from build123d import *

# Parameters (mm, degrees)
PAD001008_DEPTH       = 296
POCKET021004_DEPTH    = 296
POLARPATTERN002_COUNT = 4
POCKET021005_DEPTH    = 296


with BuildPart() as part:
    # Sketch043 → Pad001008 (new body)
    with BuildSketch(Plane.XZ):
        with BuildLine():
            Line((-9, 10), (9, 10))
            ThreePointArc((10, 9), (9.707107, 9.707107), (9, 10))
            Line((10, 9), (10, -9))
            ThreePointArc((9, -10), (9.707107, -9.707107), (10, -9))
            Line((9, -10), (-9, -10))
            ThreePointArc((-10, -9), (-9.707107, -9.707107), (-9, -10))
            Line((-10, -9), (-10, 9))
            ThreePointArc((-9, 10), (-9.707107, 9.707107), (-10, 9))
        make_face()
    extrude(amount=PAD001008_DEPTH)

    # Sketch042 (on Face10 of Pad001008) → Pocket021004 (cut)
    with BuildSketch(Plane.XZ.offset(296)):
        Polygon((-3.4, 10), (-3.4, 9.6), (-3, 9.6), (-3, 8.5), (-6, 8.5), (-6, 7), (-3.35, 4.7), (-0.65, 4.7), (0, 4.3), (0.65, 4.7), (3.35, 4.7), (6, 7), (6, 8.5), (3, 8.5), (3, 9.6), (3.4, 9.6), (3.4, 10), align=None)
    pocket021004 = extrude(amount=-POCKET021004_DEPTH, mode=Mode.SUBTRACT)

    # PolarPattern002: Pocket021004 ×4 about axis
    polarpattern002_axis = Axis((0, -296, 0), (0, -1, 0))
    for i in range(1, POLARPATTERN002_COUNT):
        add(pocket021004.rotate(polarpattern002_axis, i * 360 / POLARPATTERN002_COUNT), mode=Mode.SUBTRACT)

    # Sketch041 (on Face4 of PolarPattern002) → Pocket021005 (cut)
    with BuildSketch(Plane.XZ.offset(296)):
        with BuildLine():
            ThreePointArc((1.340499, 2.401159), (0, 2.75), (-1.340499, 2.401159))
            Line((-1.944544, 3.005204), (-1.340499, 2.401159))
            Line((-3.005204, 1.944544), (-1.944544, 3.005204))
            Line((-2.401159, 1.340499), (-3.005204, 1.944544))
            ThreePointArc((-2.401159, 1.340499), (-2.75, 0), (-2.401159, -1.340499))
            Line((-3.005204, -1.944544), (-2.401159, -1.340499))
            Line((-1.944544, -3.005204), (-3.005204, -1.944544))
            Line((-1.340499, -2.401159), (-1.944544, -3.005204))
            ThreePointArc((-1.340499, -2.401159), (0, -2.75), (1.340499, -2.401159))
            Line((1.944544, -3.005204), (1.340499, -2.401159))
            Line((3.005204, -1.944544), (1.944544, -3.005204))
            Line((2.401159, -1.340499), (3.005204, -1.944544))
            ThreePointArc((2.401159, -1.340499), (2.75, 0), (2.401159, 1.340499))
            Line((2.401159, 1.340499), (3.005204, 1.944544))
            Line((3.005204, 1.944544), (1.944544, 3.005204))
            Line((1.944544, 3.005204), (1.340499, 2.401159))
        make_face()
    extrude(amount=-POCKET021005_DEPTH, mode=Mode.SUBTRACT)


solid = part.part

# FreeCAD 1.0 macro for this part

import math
import FreeCAD as App
import Part
import Sketcher

doc = App.newDocument("Part")
body = doc.addObject("PartDesign::Body", "Body")

# Sketch on XZ plane
sketch1 = body.newObject("Sketcher::SketchObject", "Sketch")
sketch1.AttachmentSupport = (doc.getObject("XZ_Plane"), [""])
sketch1.MapMode = "FlatFace"
sketch1.addGeometry([
    Part.LineSegment(App.Vector(9, 10, 0), App.Vector(-9, 10, 0)),  # 0
    Part.ArcOfCircle(Part.Circle(App.Vector(-9, 9, 0), App.Vector(0, 0, 1), 1), math.radians(90), math.radians(180)),  # 1
    Part.LineSegment(App.Vector(-10, 9, 0), App.Vector(-10, -9, 0)),  # 2
    Part.ArcOfCircle(Part.Circle(App.Vector(-9, -9, 0), App.Vector(0, 0, 1), 1), math.radians(180), math.radians(270)),  # 3
    Part.LineSegment(App.Vector(-9, -10, 0), App.Vector(9, -10, 0)),  # 4
    Part.ArcOfCircle(Part.Circle(App.Vector(9, -9, 0), App.Vector(0, 0, 1), 1), math.radians(-90), math.radians(0)),  # 5
    Part.LineSegment(App.Vector(10, -9, 0), App.Vector(10, 9, 0)),  # 6
    Part.ArcOfCircle(Part.Circle(App.Vector(9, 9, 0), App.Vector(0, 0, 1), 1), math.radians(0), math.radians(90)),  # 7
], False)
sketch1.addConstraint([
    Sketcher.Constraint("Tangent", 0, 2, 1, 1),
    Sketcher.Constraint("Tangent", 1, 2, 2, 1),
    Sketcher.Constraint("Tangent", 2, 2, 3, 1),
    Sketcher.Constraint("Tangent", 3, 2, 4, 1),
    Sketcher.Constraint("Tangent", 4, 2, 5, 1),
    Sketcher.Constraint("Tangent", 5, 2, 6, 1),
    Sketcher.Constraint("Tangent", 6, 2, 7, 1),
    Sketcher.Constraint("Tangent", 7, 2, 0, 1),
    Sketcher.Constraint("Horizontal", 0),
    Sketcher.Constraint("Vertical", 2),
    Sketcher.Constraint("Horizontal", 4),
    Sketcher.Constraint("Vertical", 6),
    Sketcher.Constraint("Equal", 1, 3),
    Sketcher.Constraint("Equal", 3, 5),
    Sketcher.Constraint("Equal", 5, 7),
    Sketcher.Constraint("Symmetric", 1, 3, 5, 3, -1, 1),
    Sketcher.Constraint("Equal", 4, 2),
    Sketcher.Constraint("Radius", 1, 0.999999),
    Sketcher.Constraint("DistanceX", 0, 2, 0, 1, 18.0),
])
pad1 = body.newObject("PartDesign::Pad", "Pad")
pad1.Profile = sketch1
pad1.Length = 296

# Sketch on XZ plane
sketch2 = body.newObject("Sketcher::SketchObject", "Sketch001")
sketch2.AttachmentSupport = (doc.getObject("XZ_Plane"), [""])
sketch2.MapMode = "FlatFace"
sketch2.AttachmentOffset = App.Placement(App.Vector(0, 0, 296), App.Rotation())
sketch2.addGeometry([
    Part.LineSegment(App.Vector(-3.4, 10, 0), App.Vector(-3.4, 9.6, 0)),  # 0
    Part.LineSegment(App.Vector(-3.4, 9.6, 0), App.Vector(-3, 9.6, 0)),  # 1
    Part.LineSegment(App.Vector(-3, 9.6, 0), App.Vector(-3, 8.5, 0)),  # 2
    Part.LineSegment(App.Vector(-3, 8.5, 0), App.Vector(-6, 8.5, 0)),  # 3
    Part.LineSegment(App.Vector(-6, 8.5, 0), App.Vector(-6, 7, 0)),  # 4
    Part.LineSegment(App.Vector(-6, 7, 0), App.Vector(-3.35, 4.7, 0)),  # 5
    Part.LineSegment(App.Vector(-3.35, 4.7, 0), App.Vector(-0.65, 4.7, 0)),  # 6
    Part.LineSegment(App.Vector(-0.65, 4.7, 0), App.Vector(0, 4.3, 0)),  # 7
    Part.LineSegment(App.Vector(0, 4.3, 0), App.Vector(0.65, 4.7, 0)),  # 8
    Part.LineSegment(App.Vector(0.65, 4.7, 0), App.Vector(3.35, 4.7, 0)),  # 9
    Part.LineSegment(App.Vector(3.35, 4.7, 0), App.Vector(6, 7, 0)),  # 10
    Part.LineSegment(App.Vector(6, 7, 0), App.Vector(6, 8.5, 0)),  # 11
    Part.LineSegment(App.Vector(6, 8.5, 0), App.Vector(3, 8.5, 0)),  # 12
    Part.LineSegment(App.Vector(3, 8.5, 0), App.Vector(3, 9.6, 0)),  # 13
    Part.LineSegment(App.Vector(3, 9.6, 0), App.Vector(3.4, 9.6, 0)),  # 14
    Part.LineSegment(App.Vector(3.4, 9.6, 0), App.Vector(3.4, 10, 0)),  # 15
    Part.LineSegment(App.Vector(3.4, 10, 0), App.Vector(-3.4, 10, 0)),  # 16
], False)
sketch2.addConstraint([
    Sketcher.Constraint("Coincident", 0, 2, 1, 1),
    Sketcher.Constraint("Coincident", 1, 2, 2, 1),
    Sketcher.Constraint("Coincident", 2, 2, 3, 1),
    Sketcher.Constraint("Coincident", 3, 2, 4, 1),
    Sketcher.Constraint("Coincident", 4, 2, 5, 1),
    Sketcher.Constraint("Coincident", 5, 2, 6, 1),
    Sketcher.Constraint("Coincident", 6, 2, 7, 1),
    Sketcher.Constraint("Coincident", 7, 2, 8, 1),
    Sketcher.Constraint("Coincident", 8, 2, 9, 1),
    Sketcher.Constraint("Coincident", 9, 2, 10, 1),
    Sketcher.Constraint("Coincident", 10, 2, 11, 1),
    Sketcher.Constraint("Coincident", 11, 2, 12, 1),
    Sketcher.Constraint("Coincident", 12, 2, 13, 1),
    Sketcher.Constraint("Coincident", 13, 2, 14, 1),
    Sketcher.Constraint("Coincident", 14, 2, 15, 1),
    Sketcher.Constraint("Coincident", 15, 2, 16, 1),
    Sketcher.Constraint("Coincident", 16, 2, 0, 1),
    Sketcher.Constraint("Vertical", 0),
    Sketcher.Constraint("Horizontal", 1),
    Sketcher.Constraint("Vertical", 2),
    Sketcher.Constraint("Horizontal", 3),
    Sketcher.Constraint("Vertical", 4),
    Sketcher.Constraint("Horizontal", 6),
    Sketcher.Constraint("Horizontal", 9),
    Sketcher.Constraint("Vertical", 11),
    Sketcher.Constraint("Horizontal", 12),
    Sketcher.Constraint("Vertical", 13),
    Sketcher.Constraint("Horizontal", 14),
    Sketcher.Constraint("Vertical", 15),
    Sketcher.Constraint("Horizontal", 16),
    Sketcher.Constraint("Symmetric", 6, 2, 8, 2, -2),
    Sketcher.Constraint("Symmetric", 4, 2, 10, 2, -2),
    Sketcher.Constraint("Symmetric", 2, 2, 12, 2, -2),
    Sketcher.Constraint("Symmetric", 0, 2, 14, 2, -2),
    Sketcher.Constraint("PointOnObject", 7, 2, -2),
    Sketcher.Constraint("Equal", 6, 9),
    Sketcher.Constraint("Equal", 14, 0),
    Sketcher.Constraint("DistanceX", 3, 2, 3, 1, 3.0),
    Sketcher.Constraint("DistanceX", 1, 1, 1, 2, 0.4),
    Sketcher.Constraint("DistanceX", 6, 1, 6, 2, 2.7),
    Sketcher.Constraint("DistanceX", 16, 2, 16, 1, 6.8),
    Sketcher.Constraint("DistanceY", 2, 2, 2, 1, 1.1),
    Sketcher.Constraint("DistanceY", 4, 2, 4, 1, 1.5),
    Sketcher.Constraint("DistanceY", -1, 1, 4, 2, 7.0),
    Sketcher.Constraint("DistanceX", 5, 2, 8, 2, 4.0),
    Sketcher.Constraint("DistanceY", -1, 1, 5, 2, 4.7),
    Sketcher.Constraint("DistanceY", -1, 1, 7, 2, 4.3),
])
pocket1 = body.newObject("PartDesign::Pocket", "Pocket")
pocket1.Profile = sketch2
pocket1.Length = 296
doc.recompute()

polarpattern = body.newObject("PartDesign::PolarPattern", "PolarPattern")
polarpattern.Originals = [pocket1]
polarpattern.Axis = (doc.getObject("Y_Axis"), [""])
polarpattern.Angle = 360
polarpattern.Occurrences = 4
body.Tip = polarpattern

# Sketch on XZ plane
sketch3 = body.newObject("Sketcher::SketchObject", "Sketch002")
sketch3.AttachmentSupport = (doc.getObject("XZ_Plane"), [""])
sketch3.MapMode = "FlatFace"
sketch3.AttachmentOffset = App.Placement(App.Vector(0, 0, 296), App.Rotation())
sketch3.addGeometry([
    Part.ArcOfCircle(Part.Circle(App.Vector(0, 0, 0), App.Vector(0, 0, 1), 2.8), math.radians(61), math.radians(119)),  # 0
    Part.LineSegment(App.Vector(-1.3, 2.4, 0), App.Vector(-1.9, 3, 0)),  # 1
    Part.LineSegment(App.Vector(-1.9, 3, 0), App.Vector(-3, 1.9, 0)),  # 2
    Part.LineSegment(App.Vector(-3, 1.9, 0), App.Vector(-2.4, 1.3, 0)),  # 3
    Part.ArcOfCircle(Part.Circle(App.Vector(0, 0, 0), App.Vector(0, 0, 1), 2.8), math.radians(151), math.radians(209)),  # 4
    Part.LineSegment(App.Vector(-2.4, -1.3, 0), App.Vector(-3, -1.9, 0)),  # 5
    Part.LineSegment(App.Vector(-3, -1.9, 0), App.Vector(-1.9, -3, 0)),  # 6
    Part.LineSegment(App.Vector(-1.9, -3, 0), App.Vector(-1.3, -2.4, 0)),  # 7
    Part.ArcOfCircle(Part.Circle(App.Vector(0, 0, 0), App.Vector(0, 0, 1), 2.8), math.radians(-119), math.radians(-61)),  # 8
    Part.LineSegment(App.Vector(1.3, -2.4, 0), App.Vector(1.9, -3, 0)),  # 9
    Part.LineSegment(App.Vector(1.9, -3, 0), App.Vector(3, -1.9, 0)),  # 10
    Part.LineSegment(App.Vector(3, -1.9, 0), App.Vector(2.4, -1.3, 0)),  # 11
    Part.ArcOfCircle(Part.Circle(App.Vector(0, 0, 0), App.Vector(0, 0, 1), 2.8), math.radians(-29), math.radians(29)),  # 12
    Part.LineSegment(App.Vector(2.4, 1.3, 0), App.Vector(3, 1.9, 0)),  # 13
    Part.LineSegment(App.Vector(3, 1.9, 0), App.Vector(1.9, 3, 0)),  # 14
    Part.LineSegment(App.Vector(1.9, 3, 0), App.Vector(1.3, 2.4, 0)),  # 15
], False)
sketch3.addConstraint([
    Sketcher.Constraint("Coincident", 0, 2, 1, 1),
    Sketcher.Constraint("Coincident", 1, 2, 2, 1),
    Sketcher.Constraint("Coincident", 2, 2, 3, 1),
    Sketcher.Constraint("Coincident", 3, 2, 4, 1),
    Sketcher.Constraint("Coincident", 4, 2, 5, 1),
    Sketcher.Constraint("Coincident", 5, 2, 6, 1),
    Sketcher.Constraint("Coincident", 6, 2, 7, 1),
    Sketcher.Constraint("Coincident", 7, 2, 8, 1),
    Sketcher.Constraint("Coincident", 8, 2, 9, 1),
    Sketcher.Constraint("Coincident", 9, 2, 10, 1),
    Sketcher.Constraint("Coincident", 10, 2, 11, 1),
    Sketcher.Constraint("Coincident", 11, 2, 12, 1),
    Sketcher.Constraint("Coincident", 12, 2, 13, 1),
    Sketcher.Constraint("Coincident", 13, 2, 14, 1),
    Sketcher.Constraint("Coincident", 14, 2, 15, 1),
    Sketcher.Constraint("Coincident", 15, 2, 0, 1),
    Sketcher.Constraint("Coincident", 0, 3, -1, 1),
    Sketcher.Constraint("Coincident", 4, 3, -1, 1),
    Sketcher.Constraint("Coincident", 8, 3, -1, 1),
    Sketcher.Constraint("Coincident", 12, 3, -1, 1),
    Sketcher.Constraint("Equal", 0, 4),
    Sketcher.Constraint("Equal", 4, 8),
    Sketcher.Constraint("Equal", 8, 12),
    Sketcher.Constraint("Symmetric", 1, 2, 9, 2, -1, 1),
    Sketcher.Constraint("Symmetric", 2, 2, 10, 2, -1, 1),
    Sketcher.Constraint("Symmetric", 5, 2, 13, 2, -1, 1),
    Sketcher.Constraint("Symmetric", 6, 2, 14, 2, -1, 1),
    Sketcher.Constraint("Symmetric", 6, 2, 9, 2, -2),
    Sketcher.Constraint("Symmetric", 5, 2, 10, 2, -2),
    Sketcher.Constraint("Perpendicular", 1, 2),
    Sketcher.Constraint("Perpendicular", 2, 3),
    Sketcher.Constraint("Perpendicular", 3, 5),
    Sketcher.Constraint("Perpendicular", 5, 6),
    Sketcher.Constraint("Perpendicular", 6, 7),
    Sketcher.Constraint("Perpendicular", 7, 9),
    Sketcher.Constraint("Perpendicular", 10, 11),
    Sketcher.Constraint("Perpendicular", 11, 13),
    Sketcher.Constraint("Perpendicular", 14, 15),
    Sketcher.Constraint("Equal", 1, 3),
    Sketcher.Constraint("Distance", 2, 1.5),
    Sketcher.Constraint("Radius", 0, 2.750003),
    Sketcher.Constraint("DistanceY", 8, 3, 1, 2, 3.005201),
])
pocket2 = body.newObject("PartDesign::Pocket", "Pocket001")
pocket2.Profile = sketch3
pocket2.Length = 296

doc.recompute()
